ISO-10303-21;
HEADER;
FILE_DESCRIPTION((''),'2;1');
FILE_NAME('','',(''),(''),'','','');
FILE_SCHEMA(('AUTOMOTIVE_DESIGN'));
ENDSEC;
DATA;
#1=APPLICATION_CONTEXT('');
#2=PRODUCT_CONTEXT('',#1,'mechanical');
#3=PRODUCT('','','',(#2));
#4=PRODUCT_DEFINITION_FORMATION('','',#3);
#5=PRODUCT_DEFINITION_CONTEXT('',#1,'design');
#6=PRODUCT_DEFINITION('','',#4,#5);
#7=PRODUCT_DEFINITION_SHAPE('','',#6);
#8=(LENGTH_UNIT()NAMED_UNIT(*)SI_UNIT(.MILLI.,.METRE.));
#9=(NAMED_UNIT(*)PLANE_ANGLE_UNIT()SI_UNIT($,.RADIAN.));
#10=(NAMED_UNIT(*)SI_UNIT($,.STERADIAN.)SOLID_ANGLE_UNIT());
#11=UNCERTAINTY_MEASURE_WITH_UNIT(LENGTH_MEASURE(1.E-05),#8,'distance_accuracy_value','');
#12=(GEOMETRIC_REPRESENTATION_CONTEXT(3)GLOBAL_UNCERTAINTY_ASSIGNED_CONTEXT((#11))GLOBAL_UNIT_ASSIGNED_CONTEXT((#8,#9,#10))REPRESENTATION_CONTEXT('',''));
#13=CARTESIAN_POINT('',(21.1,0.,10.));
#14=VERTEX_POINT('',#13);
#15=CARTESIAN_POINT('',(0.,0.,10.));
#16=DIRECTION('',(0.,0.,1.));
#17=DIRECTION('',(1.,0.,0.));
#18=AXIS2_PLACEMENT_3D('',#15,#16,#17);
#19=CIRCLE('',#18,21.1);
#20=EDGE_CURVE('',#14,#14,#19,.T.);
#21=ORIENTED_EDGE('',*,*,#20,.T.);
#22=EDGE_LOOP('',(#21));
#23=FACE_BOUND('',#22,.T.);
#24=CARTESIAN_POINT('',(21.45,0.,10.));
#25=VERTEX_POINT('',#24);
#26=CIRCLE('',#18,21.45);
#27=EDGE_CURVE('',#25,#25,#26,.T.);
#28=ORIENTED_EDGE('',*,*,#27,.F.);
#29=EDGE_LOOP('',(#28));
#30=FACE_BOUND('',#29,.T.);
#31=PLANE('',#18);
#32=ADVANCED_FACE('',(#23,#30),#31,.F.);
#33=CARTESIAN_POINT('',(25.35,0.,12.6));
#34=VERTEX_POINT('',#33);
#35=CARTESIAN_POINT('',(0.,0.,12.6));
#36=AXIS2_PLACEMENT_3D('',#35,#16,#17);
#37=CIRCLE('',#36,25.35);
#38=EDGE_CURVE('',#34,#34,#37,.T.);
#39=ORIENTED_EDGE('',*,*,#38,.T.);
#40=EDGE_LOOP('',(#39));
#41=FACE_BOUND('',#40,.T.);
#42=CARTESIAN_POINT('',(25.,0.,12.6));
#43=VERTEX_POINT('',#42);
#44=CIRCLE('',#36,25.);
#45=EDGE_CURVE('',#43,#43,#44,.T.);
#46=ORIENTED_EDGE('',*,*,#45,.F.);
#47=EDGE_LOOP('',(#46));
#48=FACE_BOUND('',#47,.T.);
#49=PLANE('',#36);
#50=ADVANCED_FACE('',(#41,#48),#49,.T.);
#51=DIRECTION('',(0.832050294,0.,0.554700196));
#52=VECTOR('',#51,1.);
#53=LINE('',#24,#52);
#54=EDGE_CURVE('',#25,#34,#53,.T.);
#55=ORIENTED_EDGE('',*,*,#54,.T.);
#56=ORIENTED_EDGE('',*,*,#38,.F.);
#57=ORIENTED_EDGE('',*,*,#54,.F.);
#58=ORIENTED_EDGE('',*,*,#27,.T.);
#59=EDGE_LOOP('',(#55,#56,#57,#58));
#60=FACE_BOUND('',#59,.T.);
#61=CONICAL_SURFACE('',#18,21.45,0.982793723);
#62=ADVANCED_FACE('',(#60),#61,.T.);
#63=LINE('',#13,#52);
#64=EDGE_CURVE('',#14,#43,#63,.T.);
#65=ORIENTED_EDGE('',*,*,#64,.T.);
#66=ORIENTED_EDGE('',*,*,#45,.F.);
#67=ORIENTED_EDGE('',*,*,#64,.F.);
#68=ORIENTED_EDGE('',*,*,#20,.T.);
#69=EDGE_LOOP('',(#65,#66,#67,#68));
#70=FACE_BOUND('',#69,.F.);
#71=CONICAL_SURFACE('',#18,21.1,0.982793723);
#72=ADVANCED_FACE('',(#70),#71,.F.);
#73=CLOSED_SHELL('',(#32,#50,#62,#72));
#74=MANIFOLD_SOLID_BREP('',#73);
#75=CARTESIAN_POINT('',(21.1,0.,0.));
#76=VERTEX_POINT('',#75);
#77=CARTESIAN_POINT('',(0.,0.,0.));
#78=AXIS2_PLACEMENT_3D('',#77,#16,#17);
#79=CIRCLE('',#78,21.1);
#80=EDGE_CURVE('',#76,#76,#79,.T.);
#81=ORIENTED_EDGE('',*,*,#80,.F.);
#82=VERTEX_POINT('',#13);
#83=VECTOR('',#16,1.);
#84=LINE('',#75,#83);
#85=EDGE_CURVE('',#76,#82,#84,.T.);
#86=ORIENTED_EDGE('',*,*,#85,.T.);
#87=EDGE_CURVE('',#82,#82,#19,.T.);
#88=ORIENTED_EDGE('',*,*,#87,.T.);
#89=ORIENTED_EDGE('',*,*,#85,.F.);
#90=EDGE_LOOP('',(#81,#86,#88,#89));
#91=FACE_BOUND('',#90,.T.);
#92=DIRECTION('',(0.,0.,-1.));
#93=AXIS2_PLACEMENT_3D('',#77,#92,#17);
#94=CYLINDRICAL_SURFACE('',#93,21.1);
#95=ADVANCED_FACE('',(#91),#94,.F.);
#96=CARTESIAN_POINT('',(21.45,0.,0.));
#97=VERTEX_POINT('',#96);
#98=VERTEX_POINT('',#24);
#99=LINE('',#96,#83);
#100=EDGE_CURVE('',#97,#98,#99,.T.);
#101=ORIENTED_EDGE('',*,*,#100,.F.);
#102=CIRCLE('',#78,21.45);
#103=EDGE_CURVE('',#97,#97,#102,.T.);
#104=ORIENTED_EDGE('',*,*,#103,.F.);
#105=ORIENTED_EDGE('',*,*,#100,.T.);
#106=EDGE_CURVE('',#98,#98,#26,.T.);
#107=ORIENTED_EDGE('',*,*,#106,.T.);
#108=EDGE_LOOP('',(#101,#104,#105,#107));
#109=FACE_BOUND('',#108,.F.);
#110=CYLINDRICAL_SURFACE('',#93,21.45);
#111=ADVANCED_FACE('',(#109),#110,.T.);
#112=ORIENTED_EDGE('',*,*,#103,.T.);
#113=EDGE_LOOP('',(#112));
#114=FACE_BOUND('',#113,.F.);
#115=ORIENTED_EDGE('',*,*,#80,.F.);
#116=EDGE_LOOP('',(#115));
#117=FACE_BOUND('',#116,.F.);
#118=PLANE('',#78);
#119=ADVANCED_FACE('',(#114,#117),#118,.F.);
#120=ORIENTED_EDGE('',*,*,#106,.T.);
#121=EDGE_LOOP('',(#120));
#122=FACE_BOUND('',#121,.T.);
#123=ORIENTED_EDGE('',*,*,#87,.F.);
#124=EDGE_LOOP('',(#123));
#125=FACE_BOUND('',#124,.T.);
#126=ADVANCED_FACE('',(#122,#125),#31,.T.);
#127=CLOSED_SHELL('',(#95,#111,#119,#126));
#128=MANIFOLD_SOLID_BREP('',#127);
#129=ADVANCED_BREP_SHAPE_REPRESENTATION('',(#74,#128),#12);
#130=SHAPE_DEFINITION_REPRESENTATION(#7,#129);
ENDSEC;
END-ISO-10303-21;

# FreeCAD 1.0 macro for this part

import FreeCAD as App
import Part
import Sketcher

V = App.Vector
Q = App.Units.Quantity

doc = App.newDocument("Part")
params = doc.addObject("Spreadsheet::Sheet", "Params")
for row, (alias, value) in enumerate([
    ("sketch1_diameter", "42.2 mm"),
    ("pad1_length", "10 mm"),
    ("sketch2_diameter", "42.9 mm"),
    ("pad2_length", "10 mm"),
    ("sketch3_width", "25 mm"),
    ("sketch3_width2", "21.1 mm"),
    ("sketch3_height", "2.6 mm"),
    ("revolution_angle", "360 deg"),
    ("sketch4_height", "2.6 mm"),
    ("sketch4_width", "21.45 mm"),
    ("sketch4_width2", "25.35 mm"),
    ("revolution2_angle", "360 deg"),
], start=1):
    params.set(f"A{row}", alias)
    params.set(f"B{row}", "=" + value)
    params.setAlias(f"B{row}", alias)

body = doc.addObject("PartDesign::Body", "Body")

# Sketch on XY plane
sketch1 = body.newObject("Sketcher::SketchObject", "Sketch")
sketch1.AttachmentSupport = (doc.getObject("XY_Plane"), [""])
sketch1.MapMode = "FlatFace"
sketch1.addGeometry(Part.Circle(V(0, 0, 0), V(0, 0, 1), 21.1), False)
sketch1.addConstraint([
    Sketcher.Constraint("Coincident", 0, 3, -1, 1),
    Sketcher.Constraint("Diameter", 0, Q("42.2 mm")),
])
sketch1.setExpression("Constraints[1]", "Params.sketch1_diameter")
pad1 = body.newObject("PartDesign::Pad", "Pad")
pad1.Profile = sketch1
pad1.setExpression("Length", "Params.pad1_length")
body2 = doc.addObject("PartDesign::Body", "Body001")

# Sketch on XY plane
sketch2 = body2.newObject("Sketcher::SketchObject", "Sketch001")
sketch2.AttachmentSupport = (doc.getObject("XY_Plane001"), [""])
sketch2.MapMode = "FlatFace"
sketch2.addGeometry(Part.Circle(V(0, 0, 0), V(0, 0, 1), 21.45), False)
sketch2.addConstraint([
    Sketcher.Constraint("Coincident", 0, 3, -1, 1),
    Sketcher.Constraint("Diameter", 0, Q("42.9 mm")),
])
sketch2.setExpression("Constraints[1]", "Params.sketch2_diameter")
pad2 = body2.newObject("PartDesign::Pad", "Pad001")
pad2.Profile = sketch2
pad2.setExpression("Length", "Params.pad2_length")
doc.recompute()

boolean = body2.newObject("PartDesign::Boolean", "Boolean")
boolean.Type = "Cut"
boolean.addObjects([body])
body3 = doc.addObject("PartDesign::Body", "Body002")

# Sketch on XZ plane
sketch3 = body3.newObject("Sketcher::SketchObject", "Sketch002")
sketch3.AttachmentSupport = (doc.getObject("XZ_Plane002"), [""])
sketch3.MapMode = "FlatFace"
sketch3.addGeometry([
    Part.LineSegment(V(0, 10, 0), V(21.1, 10, 0)),
    Part.LineSegment(V(21.1, 10, 0), V(25, 12.6, 0)),
    Part.LineSegment(V(25, 12.6, 0), V(0, 12.6, 0)),
    Part.LineSegment(V(0, 12.6, 0), V(0, 10, 0)),
], False)
sketch3.addConstraint([
    Sketcher.Constraint("Coincident", 0, 2, 1, 1),
    Sketcher.Constraint("Coincident", 1, 2, 2, 1),
    Sketcher.Constraint("Coincident", 2, 2, 3, 1),
    Sketcher.Constraint("Coincident", 3, 2, 0, 1),
    Sketcher.Constraint("Horizontal", 0),
    Sketcher.Constraint("Horizontal", 2),
    Sketcher.Constraint("Vertical", 3),
    Sketcher.Constraint("PointOnObject", 2, 2, -2),
    Sketcher.Constraint("DistanceX", 2, 2, 2, 1, Q("25 mm")),
    Sketcher.Constraint("DistanceX", 0, 1, 0, 2, Q("21.1 mm")),
    Sketcher.Constraint("DistanceY", 3, 2, 3, 1, Q("2.6 mm")),
    Sketcher.Constraint("DistanceY", -1, 1, 0, 2, Q("10 mm")),
])
sketch3.setExpression("Constraints[8]", "Params.sketch3_width")
sketch3.setExpression("Constraints[9]", "Params.sketch3_width2")
sketch3.setExpression("Constraints[10]", "Params.sketch3_height")
revolution = body3.newObject("PartDesign::Revolution", "Revolution")
revolution.Profile = sketch3
revolution.ReferenceAxis = (sketch3, ["V_Axis"])
revolution.setExpression("Angle", "Params.revolution_angle")
body4 = doc.addObject("PartDesign::Body", "Body003")

# Sketch on XZ plane
sketch4 = body4.newObject("Sketcher::SketchObject", "Sketch003")
sketch4.AttachmentSupport = (doc.getObject("XZ_Plane003"), [""])
sketch4.MapMode = "FlatFace"
sketch4.addGeometry([
    Part.LineSegment(V(0, 10, 0), V(21.45, 10, 0)),
    Part.LineSegment(V(21.45, 10, 0), V(25.35, 12.6, 0)),
    Part.LineSegment(V(25.35, 12.6, 0), V(0, 12.6, 0)),
    Part.LineSegment(V(0, 12.6, 0), V(0, 10, 0)),
], False)
sketch4.addConstraint([
    Sketcher.Constraint("Coincident", 0, 2, 1, 1),
    Sketcher.Constraint("Coincident", 1, 2, 2, 1),
    Sketcher.Constraint("Coincident", 2, 2, 3, 1),
    Sketcher.Constraint("Coincident", 3, 2, 0, 1),
    Sketcher.Constraint("Horizontal", 0),
    Sketcher.Constraint("Horizontal", 2),
    Sketcher.Constraint("Vertical", 3),
    Sketcher.Constraint("PointOnObject", 2, 2, -2),
    Sketcher.Constraint("DistanceY", 3, 2, 3, 1, Q("2.6 mm")),
    Sketcher.Constraint("DistanceY", -1, 1, 0, 2, Q("10 mm")),
    Sketcher.Constraint("DistanceX", 0, 1, 0, 2, Q("21.45 mm")),
    Sketcher.Constraint("DistanceX", 2, 2, 2, 1, Q("25.35 mm")),
])
sketch4.setExpression("Constraints[8]", "Params.sketch4_height")
sketch4.setExpression("Constraints[10]", "Params.sketch4_width")
sketch4.setExpression("Constraints[11]", "Params.sketch4_width2")
revolution2 = body4.newObject("PartDesign::Revolution", "Revolution001")
revolution2.Profile = sketch4
revolution2.ReferenceAxis = (sketch4, ["V_Axis"])
revolution2.setExpression("Angle", "Params.revolution2_angle")
doc.recompute()

boolean2 = body4.newObject("PartDesign::Boolean", "Boolean001")
boolean2.Type = "Cut"
boolean2.addObjects([body3])

doc.recompute()
